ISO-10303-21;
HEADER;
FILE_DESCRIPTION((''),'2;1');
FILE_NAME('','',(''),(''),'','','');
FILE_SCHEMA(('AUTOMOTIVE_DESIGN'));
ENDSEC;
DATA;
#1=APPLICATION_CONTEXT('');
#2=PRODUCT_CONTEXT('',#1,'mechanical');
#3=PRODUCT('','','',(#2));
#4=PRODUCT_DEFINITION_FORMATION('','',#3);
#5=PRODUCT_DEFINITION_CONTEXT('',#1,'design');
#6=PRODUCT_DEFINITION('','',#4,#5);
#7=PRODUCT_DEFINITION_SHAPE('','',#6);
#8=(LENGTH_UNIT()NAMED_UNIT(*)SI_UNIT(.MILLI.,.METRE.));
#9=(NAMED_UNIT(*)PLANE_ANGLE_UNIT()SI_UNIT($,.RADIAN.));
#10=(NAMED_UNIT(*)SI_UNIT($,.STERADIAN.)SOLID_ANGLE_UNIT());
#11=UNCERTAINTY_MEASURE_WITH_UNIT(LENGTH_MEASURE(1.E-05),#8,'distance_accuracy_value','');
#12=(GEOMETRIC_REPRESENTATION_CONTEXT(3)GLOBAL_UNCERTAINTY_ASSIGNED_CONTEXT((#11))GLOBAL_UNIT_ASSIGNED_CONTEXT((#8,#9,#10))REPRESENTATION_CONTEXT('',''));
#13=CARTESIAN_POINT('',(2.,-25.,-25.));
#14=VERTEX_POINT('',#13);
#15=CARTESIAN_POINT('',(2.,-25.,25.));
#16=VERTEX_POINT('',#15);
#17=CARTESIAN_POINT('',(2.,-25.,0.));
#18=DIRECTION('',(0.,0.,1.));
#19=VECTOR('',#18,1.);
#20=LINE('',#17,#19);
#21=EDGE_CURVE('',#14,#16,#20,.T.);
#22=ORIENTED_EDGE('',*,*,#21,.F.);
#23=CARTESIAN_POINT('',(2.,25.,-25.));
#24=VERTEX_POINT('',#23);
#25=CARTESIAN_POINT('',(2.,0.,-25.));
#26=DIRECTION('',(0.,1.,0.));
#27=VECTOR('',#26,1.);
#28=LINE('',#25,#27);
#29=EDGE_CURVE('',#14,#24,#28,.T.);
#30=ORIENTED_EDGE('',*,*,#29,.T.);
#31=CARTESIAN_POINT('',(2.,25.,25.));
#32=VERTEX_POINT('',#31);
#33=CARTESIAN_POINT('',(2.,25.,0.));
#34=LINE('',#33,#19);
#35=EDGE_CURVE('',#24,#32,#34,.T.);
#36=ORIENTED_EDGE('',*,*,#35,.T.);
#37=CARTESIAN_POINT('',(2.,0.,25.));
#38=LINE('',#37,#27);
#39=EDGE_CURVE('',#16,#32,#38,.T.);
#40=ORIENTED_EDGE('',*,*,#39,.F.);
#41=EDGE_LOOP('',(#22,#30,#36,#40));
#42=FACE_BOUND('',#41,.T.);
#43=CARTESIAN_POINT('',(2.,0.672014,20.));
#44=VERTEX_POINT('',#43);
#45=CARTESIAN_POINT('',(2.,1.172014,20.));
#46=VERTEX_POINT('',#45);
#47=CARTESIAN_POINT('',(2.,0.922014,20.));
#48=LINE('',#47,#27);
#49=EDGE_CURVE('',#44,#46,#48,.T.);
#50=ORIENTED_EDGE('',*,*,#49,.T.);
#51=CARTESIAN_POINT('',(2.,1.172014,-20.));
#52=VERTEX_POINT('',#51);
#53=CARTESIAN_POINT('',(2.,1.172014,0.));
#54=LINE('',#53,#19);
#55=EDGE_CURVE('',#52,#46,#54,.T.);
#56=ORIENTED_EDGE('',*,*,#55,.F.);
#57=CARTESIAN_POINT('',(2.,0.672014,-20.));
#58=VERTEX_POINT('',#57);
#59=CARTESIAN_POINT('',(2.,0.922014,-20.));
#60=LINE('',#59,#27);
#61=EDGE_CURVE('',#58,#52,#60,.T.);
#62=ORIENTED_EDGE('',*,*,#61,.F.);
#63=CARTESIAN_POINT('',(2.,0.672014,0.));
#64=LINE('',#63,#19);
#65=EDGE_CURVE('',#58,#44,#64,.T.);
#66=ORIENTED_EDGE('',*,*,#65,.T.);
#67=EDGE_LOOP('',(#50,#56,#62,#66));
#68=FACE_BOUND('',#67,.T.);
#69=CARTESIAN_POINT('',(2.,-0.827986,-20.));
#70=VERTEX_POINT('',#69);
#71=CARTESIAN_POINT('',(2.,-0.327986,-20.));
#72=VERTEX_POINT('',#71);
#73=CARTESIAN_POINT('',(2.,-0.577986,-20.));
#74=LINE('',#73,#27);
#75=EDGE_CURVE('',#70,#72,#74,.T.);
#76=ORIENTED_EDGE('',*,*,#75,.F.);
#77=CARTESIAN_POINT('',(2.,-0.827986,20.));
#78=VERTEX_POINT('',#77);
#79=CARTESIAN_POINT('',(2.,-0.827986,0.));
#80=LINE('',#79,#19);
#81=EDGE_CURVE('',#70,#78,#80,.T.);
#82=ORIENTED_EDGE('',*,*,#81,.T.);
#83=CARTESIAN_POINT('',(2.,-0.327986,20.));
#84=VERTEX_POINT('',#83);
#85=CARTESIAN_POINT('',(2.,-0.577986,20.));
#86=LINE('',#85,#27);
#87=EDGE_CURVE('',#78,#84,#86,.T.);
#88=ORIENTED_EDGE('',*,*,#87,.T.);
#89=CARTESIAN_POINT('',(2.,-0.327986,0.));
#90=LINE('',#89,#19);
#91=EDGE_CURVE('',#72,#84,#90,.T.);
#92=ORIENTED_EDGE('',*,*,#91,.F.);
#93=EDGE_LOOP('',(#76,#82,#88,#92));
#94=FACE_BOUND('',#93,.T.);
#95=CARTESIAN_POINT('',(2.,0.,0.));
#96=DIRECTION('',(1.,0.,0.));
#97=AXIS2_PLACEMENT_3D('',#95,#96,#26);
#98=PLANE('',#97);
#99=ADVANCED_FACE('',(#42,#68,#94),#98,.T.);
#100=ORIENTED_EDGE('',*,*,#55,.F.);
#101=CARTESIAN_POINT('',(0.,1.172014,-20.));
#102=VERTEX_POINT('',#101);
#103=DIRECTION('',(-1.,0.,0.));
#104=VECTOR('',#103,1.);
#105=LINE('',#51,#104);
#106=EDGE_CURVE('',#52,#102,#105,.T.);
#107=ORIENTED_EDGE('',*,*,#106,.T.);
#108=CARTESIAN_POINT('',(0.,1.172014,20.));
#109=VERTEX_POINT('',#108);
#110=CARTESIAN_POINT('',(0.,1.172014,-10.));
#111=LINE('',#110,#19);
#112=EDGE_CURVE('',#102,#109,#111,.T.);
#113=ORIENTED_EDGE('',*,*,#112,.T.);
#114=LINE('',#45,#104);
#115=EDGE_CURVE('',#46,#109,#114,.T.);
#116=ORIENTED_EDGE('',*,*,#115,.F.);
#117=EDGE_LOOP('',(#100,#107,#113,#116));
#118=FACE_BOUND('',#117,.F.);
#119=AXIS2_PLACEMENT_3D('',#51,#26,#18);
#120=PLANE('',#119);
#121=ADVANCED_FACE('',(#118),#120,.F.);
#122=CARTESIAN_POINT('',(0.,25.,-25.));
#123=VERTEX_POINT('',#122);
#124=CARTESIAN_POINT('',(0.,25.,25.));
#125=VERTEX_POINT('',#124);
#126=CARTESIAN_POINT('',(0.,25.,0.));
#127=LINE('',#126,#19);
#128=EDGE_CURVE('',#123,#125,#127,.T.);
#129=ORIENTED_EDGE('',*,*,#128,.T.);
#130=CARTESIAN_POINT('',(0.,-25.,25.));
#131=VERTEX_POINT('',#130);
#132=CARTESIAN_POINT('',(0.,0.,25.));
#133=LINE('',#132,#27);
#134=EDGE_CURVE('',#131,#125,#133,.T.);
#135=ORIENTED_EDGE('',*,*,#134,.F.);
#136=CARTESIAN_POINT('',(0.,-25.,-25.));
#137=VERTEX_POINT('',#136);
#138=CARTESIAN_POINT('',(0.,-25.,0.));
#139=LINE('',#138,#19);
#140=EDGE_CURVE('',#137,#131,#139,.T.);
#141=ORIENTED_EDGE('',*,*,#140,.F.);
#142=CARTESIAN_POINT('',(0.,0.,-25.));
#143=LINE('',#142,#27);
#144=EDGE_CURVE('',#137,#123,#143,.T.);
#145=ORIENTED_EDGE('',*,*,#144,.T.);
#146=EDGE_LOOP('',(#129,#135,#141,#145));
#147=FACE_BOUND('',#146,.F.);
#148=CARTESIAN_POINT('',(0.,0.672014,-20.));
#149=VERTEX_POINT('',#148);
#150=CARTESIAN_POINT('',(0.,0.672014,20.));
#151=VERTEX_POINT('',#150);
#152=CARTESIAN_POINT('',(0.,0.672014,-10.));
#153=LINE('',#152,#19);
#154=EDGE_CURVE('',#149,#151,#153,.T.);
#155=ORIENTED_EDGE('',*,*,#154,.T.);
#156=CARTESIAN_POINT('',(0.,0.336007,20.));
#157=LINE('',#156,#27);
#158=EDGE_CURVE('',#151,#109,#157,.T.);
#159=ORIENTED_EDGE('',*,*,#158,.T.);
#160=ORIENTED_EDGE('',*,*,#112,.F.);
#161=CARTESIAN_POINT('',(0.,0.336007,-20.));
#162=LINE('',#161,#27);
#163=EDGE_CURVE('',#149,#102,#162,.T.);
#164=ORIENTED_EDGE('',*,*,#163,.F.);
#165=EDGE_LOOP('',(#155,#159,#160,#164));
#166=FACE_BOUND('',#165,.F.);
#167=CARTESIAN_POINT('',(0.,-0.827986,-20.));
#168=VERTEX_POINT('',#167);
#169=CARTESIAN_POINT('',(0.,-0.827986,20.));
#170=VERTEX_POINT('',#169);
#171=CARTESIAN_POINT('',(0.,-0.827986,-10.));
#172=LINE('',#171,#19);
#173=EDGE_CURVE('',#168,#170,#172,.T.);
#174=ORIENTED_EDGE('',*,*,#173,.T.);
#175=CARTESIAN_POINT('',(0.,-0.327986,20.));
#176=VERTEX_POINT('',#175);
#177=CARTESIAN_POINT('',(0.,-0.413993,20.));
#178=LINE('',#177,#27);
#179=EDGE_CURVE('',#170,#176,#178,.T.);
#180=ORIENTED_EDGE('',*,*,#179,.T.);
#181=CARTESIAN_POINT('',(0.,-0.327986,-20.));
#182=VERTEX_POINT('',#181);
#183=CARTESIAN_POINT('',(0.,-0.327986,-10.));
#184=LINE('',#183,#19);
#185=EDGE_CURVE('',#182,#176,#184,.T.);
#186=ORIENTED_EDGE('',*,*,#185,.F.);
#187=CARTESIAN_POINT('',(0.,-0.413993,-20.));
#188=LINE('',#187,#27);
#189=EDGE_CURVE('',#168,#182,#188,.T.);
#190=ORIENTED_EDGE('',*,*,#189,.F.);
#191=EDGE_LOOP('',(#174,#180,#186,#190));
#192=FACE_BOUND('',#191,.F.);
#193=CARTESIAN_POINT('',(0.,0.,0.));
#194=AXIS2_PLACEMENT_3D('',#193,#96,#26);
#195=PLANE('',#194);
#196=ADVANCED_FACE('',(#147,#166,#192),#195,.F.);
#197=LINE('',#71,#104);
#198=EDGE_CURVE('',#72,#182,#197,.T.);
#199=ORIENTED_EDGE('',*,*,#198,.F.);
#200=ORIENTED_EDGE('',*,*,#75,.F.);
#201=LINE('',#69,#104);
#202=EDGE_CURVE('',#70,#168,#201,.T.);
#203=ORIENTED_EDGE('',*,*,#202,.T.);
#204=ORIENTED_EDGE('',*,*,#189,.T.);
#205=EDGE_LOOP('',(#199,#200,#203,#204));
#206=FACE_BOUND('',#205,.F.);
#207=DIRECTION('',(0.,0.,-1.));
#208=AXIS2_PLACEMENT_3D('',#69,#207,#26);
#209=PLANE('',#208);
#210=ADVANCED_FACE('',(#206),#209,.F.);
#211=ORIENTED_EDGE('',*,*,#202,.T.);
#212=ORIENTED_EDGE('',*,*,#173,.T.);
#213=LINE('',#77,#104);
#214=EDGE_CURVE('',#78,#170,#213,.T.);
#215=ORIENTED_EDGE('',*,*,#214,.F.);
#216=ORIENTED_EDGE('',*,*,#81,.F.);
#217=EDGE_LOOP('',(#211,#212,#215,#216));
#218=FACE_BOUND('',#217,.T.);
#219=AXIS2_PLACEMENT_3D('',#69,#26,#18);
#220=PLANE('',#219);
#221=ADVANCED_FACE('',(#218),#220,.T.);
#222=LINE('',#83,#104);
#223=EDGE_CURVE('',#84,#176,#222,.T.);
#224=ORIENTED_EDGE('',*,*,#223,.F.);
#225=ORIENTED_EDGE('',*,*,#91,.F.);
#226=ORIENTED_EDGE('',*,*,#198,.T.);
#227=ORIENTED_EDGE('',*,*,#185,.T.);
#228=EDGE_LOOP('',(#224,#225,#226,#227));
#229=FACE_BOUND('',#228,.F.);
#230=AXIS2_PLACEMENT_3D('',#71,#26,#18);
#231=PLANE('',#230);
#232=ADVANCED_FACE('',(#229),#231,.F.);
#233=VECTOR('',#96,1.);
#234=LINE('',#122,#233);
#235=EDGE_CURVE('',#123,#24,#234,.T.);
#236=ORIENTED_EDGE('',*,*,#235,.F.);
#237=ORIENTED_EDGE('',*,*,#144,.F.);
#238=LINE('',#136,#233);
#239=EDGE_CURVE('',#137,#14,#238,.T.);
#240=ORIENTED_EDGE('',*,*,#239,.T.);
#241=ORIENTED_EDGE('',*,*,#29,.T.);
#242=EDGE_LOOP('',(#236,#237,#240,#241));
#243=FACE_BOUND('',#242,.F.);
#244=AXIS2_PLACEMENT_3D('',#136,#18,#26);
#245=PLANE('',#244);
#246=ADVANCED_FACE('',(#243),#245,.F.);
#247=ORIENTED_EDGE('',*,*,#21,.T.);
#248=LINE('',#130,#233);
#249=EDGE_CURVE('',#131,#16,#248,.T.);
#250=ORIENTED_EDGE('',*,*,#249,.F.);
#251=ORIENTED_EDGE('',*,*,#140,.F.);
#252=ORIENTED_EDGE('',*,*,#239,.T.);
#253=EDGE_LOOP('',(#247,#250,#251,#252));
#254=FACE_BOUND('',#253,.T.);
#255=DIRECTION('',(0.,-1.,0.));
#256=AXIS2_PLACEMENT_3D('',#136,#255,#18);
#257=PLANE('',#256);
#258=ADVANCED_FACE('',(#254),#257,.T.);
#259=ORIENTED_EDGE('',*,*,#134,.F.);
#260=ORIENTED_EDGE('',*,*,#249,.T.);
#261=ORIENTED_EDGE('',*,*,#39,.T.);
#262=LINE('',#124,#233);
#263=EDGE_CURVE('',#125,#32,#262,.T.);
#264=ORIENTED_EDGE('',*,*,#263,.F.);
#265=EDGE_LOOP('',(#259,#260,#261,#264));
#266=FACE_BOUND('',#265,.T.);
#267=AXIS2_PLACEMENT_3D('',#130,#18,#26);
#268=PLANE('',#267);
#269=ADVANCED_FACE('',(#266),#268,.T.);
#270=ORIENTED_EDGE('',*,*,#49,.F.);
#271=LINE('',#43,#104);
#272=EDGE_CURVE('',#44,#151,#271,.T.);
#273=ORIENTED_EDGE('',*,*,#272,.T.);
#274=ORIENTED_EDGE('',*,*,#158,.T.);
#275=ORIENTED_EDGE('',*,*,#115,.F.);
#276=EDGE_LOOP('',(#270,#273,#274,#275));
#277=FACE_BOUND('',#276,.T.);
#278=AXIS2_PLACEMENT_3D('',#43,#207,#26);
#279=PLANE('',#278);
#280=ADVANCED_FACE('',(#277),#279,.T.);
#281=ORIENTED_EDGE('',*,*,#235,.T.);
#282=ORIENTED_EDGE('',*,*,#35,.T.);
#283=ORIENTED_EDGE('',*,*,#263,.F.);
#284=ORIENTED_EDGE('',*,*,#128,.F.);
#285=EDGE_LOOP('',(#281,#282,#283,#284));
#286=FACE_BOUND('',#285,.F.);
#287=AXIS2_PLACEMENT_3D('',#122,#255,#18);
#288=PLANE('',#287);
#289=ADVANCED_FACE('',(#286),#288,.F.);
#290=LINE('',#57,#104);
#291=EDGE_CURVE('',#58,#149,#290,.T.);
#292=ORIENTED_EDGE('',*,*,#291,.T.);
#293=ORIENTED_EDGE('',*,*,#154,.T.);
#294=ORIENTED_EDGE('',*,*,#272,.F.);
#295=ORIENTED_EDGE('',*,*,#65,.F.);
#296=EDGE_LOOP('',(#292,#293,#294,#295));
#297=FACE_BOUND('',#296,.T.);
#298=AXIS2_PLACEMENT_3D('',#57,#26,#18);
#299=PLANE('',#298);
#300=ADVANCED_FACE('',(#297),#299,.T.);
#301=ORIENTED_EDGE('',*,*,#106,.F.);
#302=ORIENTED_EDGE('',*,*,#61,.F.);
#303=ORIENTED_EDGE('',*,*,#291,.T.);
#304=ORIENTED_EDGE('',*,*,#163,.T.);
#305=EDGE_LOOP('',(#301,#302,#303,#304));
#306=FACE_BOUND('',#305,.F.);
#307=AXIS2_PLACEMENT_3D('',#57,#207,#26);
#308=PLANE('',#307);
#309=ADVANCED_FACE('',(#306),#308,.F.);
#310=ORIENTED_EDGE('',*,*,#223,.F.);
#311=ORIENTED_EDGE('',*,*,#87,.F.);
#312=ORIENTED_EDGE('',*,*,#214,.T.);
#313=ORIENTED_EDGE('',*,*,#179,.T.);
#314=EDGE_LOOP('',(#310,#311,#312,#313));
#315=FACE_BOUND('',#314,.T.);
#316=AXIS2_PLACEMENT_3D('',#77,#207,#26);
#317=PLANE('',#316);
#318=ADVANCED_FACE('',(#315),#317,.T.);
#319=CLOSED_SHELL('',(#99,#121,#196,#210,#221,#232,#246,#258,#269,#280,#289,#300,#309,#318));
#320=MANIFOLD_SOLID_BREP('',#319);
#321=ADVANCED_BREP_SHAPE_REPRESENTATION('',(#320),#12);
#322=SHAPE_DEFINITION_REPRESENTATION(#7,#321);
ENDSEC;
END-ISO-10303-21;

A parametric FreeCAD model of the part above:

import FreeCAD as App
import Part
import Sketcher

V = App.Vector

doc = App.newDocument("Part")
params = doc.addObject("Spreadsheet::Sheet", "Params")
for row, (alias, value) in enumerate([
    ("sketch1_width", "50 mm"),
    ("pad1_length", "2 mm"),
    ("sketch2_height", "40 mm"),
    ("sketch2_width", "0.5 mm"),
], start=1):
    params.set(f"A{row}", alias)
    params.set(f"B{row}", "=" + value)
    params.setAlias(f"B{row}", alias)

body = doc.addObject("PartDesign::Body", "Body")

# Sketch on YZ plane
sketch1 = doc.addObject("Sketcher::SketchObject", "Sketch")
body.addObject(sketch1)
sketch1.AttachmentSupport = (doc.YZ_Plane, [""])
sketch1.MapMode = "FlatFace"
sketch1.addGeometry([
    Part.LineSegment(V(-25, 25, 0), V(-25, -25, 0)),
    Part.LineSegment(V(-25, -25, 0), V(25, -25, 0)),
    Part.LineSegment(V(25, -25, 0), V(25, 25, 0)),
    Part.LineSegment(V(25, 25, 0), V(-25, 25, 0)),
], False)
sketch1.addConstraint([
    Sketcher.Constraint("Coincident", 0, 2, 1, 1),
    Sketcher.Constraint("Coincident", 1, 2, 2, 1),
    Sketcher.Constraint("Coincident", 2, 2, 3, 1),
    Sketcher.Constraint("Coincident", 3, 2, 0, 1),
    Sketcher.Constraint("Vertical", 0),
    Sketcher.Constraint("Horizontal", 1),
    Sketcher.Constraint("Vertical", 2),
    Sketcher.Constraint("Horizontal", 3),
    Sketcher.Constraint("Symmetric", 0, 2, 2, 2, -1, 1),
    Sketcher.Constraint("Equal", 3, 0),
    Sketcher.Constraint("DistanceX", 1, 1, 1, 2, 50.0),
])
sketch1.setExpression("Constraints[10]", "Params.sketch1_width")
pad1 = doc.addObject("PartDesign::Pad", "Pad")
body.addObject(pad1)
pad1.Profile = sketch1
pad1.setExpression("Length", "Params.pad1_length")

# Sketch on YZ plane
sketch2 = doc.addObject("Sketcher::SketchObject", "Sketch001")
body.addObject(sketch2)
sketch2.AttachmentSupport = (doc.YZ_Plane, [""])
sketch2.MapMode = "FlatFace"
sketch2.AttachmentOffset = App.Placement(V(0, 0, 2), App.Rotation())
sketch2.addGeometry([
    Part.LineSegment(V(-0.827986, 20, 0), V(-0.827986, -20, 0)),  # 0
    Part.LineSegment(V(-0.827986, -20, 0), V(-0.327986, -20, 0)),  # 1
    Part.LineSegment(V(-0.327986, -20, 0), V(-0.327986, 20, 0)),  # 2
    Part.LineSegment(V(-0.327986, 20, 0), V(-0.827986, 20, 0)),  # 3
    Part.LineSegment(V(0.672014, 20, 0), V(0.672014, -20, 0)),  # 4
    Part.LineSegment(V(0.672014, -20, 0), V(1.172014, -20, 0)),  # 5
    Part.LineSegment(V(1.172014, -20, 0), V(1.172014, 20, 0)),  # 6
    Part.LineSegment(V(1.172014, 20, 0), V(0.672014, 20, 0)),  # 7
], False)
sketch2.addConstraint([
    Sketcher.Constraint("Coincident", 0, 2, 1, 1),
    Sketcher.Constraint("Coincident", 1, 2, 2, 1),
    Sketcher.Constraint("Coincident", 2, 2, 3, 1),
    Sketcher.Constraint("Coincident", 3, 2, 0, 1),
    Sketcher.Constraint("Coincident", 4, 2, 5, 1),
    Sketcher.Constraint("Coincident", 5, 2, 6, 1),
    Sketcher.Constraint("Coincident", 6, 2, 7, 1),
    Sketcher.Constraint("Coincident", 7, 2, 4, 1),
    Sketcher.Constraint("Vertical", 0),
    Sketcher.Constraint("Horizontal", 1),
    Sketcher.Constraint("Vertical", 2),
    Sketcher.Constraint("Horizontal", 3),
    Sketcher.Constraint("Vertical", 4),
    Sketcher.Constraint("Horizontal", 5),
    Sketcher.Constraint("Vertical", 6),
    Sketcher.Constraint("Horizontal", 7),
    Sketcher.Constraint("Horizontal", 1, 2, 4, 2),
    Sketcher.Constraint("Horizontal", 3, 2, 6, 2),
    Sketcher.Constraint("Equal", 3, 5),
    Sketcher.Constraint("DistanceY", 0, 2, 0, 1, 40.0),
    Sketcher.Constraint("DistanceX", 1, 1, 1, 2, 0.5),
    Sketcher.Constraint("DistanceY", 0, 2, -1, 1, 20.0),
    Sketcher.Constraint("DistanceX", 1, 2, 4, 2, 1.0),
    Sketcher.Constraint("DistanceX", 0, 2, -1, 1, 0.827986),
])
sketch2.setExpression("Constraints[19]", "Params.sketch2_height")
sketch2.setExpression("Constraints[20]", "Params.sketch2_width")
pocket1 = doc.addObject("PartDesign::Pocket", "Pocket")
body.addObject(pocket1)
pocket1.Profile = sketch2
pocket1.Type = "ThroughAll"

doc.recompute()
